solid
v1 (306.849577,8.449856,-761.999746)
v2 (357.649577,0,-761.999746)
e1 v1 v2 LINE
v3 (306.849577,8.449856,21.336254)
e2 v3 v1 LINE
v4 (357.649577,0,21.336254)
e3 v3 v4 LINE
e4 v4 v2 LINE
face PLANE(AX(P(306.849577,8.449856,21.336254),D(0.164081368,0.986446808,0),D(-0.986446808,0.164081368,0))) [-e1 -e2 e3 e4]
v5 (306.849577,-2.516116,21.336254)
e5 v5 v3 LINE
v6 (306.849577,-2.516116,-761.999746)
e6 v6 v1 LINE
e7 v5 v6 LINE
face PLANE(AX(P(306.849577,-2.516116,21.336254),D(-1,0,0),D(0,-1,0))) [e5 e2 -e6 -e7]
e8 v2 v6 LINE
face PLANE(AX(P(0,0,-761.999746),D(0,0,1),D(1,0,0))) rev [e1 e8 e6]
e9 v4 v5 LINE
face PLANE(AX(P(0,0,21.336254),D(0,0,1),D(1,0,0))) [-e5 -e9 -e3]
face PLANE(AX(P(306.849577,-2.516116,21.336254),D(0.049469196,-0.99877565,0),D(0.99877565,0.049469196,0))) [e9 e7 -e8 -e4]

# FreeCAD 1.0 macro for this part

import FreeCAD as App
import Part
import Sketcher
Q = App.Units.Quantity

doc = App.newDocument("Part")
params = doc.addObject("Spreadsheet::Sheet", "Params")
for row, (alias, value) in enumerate([
    ("pad1_length", "30.84 in"),
], start=1):
    params.set(f"A{row}", alias)
    params.set(f"B{row}", "=" + value)
    params.setAlias(f"B{row}", alias)

body = doc.addObject("PartDesign::Body", "Body")

# Sketch on XY plane
sketch1 = body.newObject("Sketcher::SketchObject", "Sketch")
sketch1.AttachmentSupport = (doc.getObject("XY_Plane"), [""])
sketch1.MapMode = "FlatFace"
sketch1.AttachmentOffset = App.Placement(App.Vector(0, 0, -761.999746), App.Rotation())
sketch1.addGeometry(Part.LineSegment(App.Vector(307, -3, 0), App.Vector(307, 8, 0)), False)
sketch1.addGeometry(Part.LineSegment(App.Vector(307, 8, 0), App.Vector(358, 0, 0)), False)
sketch1.addGeometry(Part.LineSegment(App.Vector(358, 0, 0), App.Vector(307, -3, 0)), False)
sketch1.addConstraint(Sketcher.Constraint("Coincident", 0, 2, 1, 1))
sketch1.addConstraint(Sketcher.Constraint("Coincident", 1, 2, 2, 1))
sketch1.addConstraint(Sketcher.Constraint("Coincident", 2, 2, 0, 1))
sketch1.addConstraint(Sketcher.Constraint("Vertical", 0))
sketch1.addConstraint(Sketcher.Constraint("PointOnObject", 1, 2, -1))
sketch1.addConstraint(Sketcher.Constraint("DistanceX", 0, 2, 1, 2, Q("2 in")))
sketch1.addConstraint(Sketcher.Constraint("DistanceY", 0, 1, 0, 2, Q("10.965972 mm")))
sketch1.addConstraint(Sketcher.Constraint("Distance", 1, Q("51.497962 mm")))
sketch1.addConstraint(Sketcher.Constraint("DistanceX", -1, 1, 0, 2, Q("306.849577 mm")))
pad1 = body.newObject("PartDesign::Pad", "Pad")
pad1.Profile = sketch1
pad1.setExpression("Length", "Params.pad1_length")

doc.recompute()
